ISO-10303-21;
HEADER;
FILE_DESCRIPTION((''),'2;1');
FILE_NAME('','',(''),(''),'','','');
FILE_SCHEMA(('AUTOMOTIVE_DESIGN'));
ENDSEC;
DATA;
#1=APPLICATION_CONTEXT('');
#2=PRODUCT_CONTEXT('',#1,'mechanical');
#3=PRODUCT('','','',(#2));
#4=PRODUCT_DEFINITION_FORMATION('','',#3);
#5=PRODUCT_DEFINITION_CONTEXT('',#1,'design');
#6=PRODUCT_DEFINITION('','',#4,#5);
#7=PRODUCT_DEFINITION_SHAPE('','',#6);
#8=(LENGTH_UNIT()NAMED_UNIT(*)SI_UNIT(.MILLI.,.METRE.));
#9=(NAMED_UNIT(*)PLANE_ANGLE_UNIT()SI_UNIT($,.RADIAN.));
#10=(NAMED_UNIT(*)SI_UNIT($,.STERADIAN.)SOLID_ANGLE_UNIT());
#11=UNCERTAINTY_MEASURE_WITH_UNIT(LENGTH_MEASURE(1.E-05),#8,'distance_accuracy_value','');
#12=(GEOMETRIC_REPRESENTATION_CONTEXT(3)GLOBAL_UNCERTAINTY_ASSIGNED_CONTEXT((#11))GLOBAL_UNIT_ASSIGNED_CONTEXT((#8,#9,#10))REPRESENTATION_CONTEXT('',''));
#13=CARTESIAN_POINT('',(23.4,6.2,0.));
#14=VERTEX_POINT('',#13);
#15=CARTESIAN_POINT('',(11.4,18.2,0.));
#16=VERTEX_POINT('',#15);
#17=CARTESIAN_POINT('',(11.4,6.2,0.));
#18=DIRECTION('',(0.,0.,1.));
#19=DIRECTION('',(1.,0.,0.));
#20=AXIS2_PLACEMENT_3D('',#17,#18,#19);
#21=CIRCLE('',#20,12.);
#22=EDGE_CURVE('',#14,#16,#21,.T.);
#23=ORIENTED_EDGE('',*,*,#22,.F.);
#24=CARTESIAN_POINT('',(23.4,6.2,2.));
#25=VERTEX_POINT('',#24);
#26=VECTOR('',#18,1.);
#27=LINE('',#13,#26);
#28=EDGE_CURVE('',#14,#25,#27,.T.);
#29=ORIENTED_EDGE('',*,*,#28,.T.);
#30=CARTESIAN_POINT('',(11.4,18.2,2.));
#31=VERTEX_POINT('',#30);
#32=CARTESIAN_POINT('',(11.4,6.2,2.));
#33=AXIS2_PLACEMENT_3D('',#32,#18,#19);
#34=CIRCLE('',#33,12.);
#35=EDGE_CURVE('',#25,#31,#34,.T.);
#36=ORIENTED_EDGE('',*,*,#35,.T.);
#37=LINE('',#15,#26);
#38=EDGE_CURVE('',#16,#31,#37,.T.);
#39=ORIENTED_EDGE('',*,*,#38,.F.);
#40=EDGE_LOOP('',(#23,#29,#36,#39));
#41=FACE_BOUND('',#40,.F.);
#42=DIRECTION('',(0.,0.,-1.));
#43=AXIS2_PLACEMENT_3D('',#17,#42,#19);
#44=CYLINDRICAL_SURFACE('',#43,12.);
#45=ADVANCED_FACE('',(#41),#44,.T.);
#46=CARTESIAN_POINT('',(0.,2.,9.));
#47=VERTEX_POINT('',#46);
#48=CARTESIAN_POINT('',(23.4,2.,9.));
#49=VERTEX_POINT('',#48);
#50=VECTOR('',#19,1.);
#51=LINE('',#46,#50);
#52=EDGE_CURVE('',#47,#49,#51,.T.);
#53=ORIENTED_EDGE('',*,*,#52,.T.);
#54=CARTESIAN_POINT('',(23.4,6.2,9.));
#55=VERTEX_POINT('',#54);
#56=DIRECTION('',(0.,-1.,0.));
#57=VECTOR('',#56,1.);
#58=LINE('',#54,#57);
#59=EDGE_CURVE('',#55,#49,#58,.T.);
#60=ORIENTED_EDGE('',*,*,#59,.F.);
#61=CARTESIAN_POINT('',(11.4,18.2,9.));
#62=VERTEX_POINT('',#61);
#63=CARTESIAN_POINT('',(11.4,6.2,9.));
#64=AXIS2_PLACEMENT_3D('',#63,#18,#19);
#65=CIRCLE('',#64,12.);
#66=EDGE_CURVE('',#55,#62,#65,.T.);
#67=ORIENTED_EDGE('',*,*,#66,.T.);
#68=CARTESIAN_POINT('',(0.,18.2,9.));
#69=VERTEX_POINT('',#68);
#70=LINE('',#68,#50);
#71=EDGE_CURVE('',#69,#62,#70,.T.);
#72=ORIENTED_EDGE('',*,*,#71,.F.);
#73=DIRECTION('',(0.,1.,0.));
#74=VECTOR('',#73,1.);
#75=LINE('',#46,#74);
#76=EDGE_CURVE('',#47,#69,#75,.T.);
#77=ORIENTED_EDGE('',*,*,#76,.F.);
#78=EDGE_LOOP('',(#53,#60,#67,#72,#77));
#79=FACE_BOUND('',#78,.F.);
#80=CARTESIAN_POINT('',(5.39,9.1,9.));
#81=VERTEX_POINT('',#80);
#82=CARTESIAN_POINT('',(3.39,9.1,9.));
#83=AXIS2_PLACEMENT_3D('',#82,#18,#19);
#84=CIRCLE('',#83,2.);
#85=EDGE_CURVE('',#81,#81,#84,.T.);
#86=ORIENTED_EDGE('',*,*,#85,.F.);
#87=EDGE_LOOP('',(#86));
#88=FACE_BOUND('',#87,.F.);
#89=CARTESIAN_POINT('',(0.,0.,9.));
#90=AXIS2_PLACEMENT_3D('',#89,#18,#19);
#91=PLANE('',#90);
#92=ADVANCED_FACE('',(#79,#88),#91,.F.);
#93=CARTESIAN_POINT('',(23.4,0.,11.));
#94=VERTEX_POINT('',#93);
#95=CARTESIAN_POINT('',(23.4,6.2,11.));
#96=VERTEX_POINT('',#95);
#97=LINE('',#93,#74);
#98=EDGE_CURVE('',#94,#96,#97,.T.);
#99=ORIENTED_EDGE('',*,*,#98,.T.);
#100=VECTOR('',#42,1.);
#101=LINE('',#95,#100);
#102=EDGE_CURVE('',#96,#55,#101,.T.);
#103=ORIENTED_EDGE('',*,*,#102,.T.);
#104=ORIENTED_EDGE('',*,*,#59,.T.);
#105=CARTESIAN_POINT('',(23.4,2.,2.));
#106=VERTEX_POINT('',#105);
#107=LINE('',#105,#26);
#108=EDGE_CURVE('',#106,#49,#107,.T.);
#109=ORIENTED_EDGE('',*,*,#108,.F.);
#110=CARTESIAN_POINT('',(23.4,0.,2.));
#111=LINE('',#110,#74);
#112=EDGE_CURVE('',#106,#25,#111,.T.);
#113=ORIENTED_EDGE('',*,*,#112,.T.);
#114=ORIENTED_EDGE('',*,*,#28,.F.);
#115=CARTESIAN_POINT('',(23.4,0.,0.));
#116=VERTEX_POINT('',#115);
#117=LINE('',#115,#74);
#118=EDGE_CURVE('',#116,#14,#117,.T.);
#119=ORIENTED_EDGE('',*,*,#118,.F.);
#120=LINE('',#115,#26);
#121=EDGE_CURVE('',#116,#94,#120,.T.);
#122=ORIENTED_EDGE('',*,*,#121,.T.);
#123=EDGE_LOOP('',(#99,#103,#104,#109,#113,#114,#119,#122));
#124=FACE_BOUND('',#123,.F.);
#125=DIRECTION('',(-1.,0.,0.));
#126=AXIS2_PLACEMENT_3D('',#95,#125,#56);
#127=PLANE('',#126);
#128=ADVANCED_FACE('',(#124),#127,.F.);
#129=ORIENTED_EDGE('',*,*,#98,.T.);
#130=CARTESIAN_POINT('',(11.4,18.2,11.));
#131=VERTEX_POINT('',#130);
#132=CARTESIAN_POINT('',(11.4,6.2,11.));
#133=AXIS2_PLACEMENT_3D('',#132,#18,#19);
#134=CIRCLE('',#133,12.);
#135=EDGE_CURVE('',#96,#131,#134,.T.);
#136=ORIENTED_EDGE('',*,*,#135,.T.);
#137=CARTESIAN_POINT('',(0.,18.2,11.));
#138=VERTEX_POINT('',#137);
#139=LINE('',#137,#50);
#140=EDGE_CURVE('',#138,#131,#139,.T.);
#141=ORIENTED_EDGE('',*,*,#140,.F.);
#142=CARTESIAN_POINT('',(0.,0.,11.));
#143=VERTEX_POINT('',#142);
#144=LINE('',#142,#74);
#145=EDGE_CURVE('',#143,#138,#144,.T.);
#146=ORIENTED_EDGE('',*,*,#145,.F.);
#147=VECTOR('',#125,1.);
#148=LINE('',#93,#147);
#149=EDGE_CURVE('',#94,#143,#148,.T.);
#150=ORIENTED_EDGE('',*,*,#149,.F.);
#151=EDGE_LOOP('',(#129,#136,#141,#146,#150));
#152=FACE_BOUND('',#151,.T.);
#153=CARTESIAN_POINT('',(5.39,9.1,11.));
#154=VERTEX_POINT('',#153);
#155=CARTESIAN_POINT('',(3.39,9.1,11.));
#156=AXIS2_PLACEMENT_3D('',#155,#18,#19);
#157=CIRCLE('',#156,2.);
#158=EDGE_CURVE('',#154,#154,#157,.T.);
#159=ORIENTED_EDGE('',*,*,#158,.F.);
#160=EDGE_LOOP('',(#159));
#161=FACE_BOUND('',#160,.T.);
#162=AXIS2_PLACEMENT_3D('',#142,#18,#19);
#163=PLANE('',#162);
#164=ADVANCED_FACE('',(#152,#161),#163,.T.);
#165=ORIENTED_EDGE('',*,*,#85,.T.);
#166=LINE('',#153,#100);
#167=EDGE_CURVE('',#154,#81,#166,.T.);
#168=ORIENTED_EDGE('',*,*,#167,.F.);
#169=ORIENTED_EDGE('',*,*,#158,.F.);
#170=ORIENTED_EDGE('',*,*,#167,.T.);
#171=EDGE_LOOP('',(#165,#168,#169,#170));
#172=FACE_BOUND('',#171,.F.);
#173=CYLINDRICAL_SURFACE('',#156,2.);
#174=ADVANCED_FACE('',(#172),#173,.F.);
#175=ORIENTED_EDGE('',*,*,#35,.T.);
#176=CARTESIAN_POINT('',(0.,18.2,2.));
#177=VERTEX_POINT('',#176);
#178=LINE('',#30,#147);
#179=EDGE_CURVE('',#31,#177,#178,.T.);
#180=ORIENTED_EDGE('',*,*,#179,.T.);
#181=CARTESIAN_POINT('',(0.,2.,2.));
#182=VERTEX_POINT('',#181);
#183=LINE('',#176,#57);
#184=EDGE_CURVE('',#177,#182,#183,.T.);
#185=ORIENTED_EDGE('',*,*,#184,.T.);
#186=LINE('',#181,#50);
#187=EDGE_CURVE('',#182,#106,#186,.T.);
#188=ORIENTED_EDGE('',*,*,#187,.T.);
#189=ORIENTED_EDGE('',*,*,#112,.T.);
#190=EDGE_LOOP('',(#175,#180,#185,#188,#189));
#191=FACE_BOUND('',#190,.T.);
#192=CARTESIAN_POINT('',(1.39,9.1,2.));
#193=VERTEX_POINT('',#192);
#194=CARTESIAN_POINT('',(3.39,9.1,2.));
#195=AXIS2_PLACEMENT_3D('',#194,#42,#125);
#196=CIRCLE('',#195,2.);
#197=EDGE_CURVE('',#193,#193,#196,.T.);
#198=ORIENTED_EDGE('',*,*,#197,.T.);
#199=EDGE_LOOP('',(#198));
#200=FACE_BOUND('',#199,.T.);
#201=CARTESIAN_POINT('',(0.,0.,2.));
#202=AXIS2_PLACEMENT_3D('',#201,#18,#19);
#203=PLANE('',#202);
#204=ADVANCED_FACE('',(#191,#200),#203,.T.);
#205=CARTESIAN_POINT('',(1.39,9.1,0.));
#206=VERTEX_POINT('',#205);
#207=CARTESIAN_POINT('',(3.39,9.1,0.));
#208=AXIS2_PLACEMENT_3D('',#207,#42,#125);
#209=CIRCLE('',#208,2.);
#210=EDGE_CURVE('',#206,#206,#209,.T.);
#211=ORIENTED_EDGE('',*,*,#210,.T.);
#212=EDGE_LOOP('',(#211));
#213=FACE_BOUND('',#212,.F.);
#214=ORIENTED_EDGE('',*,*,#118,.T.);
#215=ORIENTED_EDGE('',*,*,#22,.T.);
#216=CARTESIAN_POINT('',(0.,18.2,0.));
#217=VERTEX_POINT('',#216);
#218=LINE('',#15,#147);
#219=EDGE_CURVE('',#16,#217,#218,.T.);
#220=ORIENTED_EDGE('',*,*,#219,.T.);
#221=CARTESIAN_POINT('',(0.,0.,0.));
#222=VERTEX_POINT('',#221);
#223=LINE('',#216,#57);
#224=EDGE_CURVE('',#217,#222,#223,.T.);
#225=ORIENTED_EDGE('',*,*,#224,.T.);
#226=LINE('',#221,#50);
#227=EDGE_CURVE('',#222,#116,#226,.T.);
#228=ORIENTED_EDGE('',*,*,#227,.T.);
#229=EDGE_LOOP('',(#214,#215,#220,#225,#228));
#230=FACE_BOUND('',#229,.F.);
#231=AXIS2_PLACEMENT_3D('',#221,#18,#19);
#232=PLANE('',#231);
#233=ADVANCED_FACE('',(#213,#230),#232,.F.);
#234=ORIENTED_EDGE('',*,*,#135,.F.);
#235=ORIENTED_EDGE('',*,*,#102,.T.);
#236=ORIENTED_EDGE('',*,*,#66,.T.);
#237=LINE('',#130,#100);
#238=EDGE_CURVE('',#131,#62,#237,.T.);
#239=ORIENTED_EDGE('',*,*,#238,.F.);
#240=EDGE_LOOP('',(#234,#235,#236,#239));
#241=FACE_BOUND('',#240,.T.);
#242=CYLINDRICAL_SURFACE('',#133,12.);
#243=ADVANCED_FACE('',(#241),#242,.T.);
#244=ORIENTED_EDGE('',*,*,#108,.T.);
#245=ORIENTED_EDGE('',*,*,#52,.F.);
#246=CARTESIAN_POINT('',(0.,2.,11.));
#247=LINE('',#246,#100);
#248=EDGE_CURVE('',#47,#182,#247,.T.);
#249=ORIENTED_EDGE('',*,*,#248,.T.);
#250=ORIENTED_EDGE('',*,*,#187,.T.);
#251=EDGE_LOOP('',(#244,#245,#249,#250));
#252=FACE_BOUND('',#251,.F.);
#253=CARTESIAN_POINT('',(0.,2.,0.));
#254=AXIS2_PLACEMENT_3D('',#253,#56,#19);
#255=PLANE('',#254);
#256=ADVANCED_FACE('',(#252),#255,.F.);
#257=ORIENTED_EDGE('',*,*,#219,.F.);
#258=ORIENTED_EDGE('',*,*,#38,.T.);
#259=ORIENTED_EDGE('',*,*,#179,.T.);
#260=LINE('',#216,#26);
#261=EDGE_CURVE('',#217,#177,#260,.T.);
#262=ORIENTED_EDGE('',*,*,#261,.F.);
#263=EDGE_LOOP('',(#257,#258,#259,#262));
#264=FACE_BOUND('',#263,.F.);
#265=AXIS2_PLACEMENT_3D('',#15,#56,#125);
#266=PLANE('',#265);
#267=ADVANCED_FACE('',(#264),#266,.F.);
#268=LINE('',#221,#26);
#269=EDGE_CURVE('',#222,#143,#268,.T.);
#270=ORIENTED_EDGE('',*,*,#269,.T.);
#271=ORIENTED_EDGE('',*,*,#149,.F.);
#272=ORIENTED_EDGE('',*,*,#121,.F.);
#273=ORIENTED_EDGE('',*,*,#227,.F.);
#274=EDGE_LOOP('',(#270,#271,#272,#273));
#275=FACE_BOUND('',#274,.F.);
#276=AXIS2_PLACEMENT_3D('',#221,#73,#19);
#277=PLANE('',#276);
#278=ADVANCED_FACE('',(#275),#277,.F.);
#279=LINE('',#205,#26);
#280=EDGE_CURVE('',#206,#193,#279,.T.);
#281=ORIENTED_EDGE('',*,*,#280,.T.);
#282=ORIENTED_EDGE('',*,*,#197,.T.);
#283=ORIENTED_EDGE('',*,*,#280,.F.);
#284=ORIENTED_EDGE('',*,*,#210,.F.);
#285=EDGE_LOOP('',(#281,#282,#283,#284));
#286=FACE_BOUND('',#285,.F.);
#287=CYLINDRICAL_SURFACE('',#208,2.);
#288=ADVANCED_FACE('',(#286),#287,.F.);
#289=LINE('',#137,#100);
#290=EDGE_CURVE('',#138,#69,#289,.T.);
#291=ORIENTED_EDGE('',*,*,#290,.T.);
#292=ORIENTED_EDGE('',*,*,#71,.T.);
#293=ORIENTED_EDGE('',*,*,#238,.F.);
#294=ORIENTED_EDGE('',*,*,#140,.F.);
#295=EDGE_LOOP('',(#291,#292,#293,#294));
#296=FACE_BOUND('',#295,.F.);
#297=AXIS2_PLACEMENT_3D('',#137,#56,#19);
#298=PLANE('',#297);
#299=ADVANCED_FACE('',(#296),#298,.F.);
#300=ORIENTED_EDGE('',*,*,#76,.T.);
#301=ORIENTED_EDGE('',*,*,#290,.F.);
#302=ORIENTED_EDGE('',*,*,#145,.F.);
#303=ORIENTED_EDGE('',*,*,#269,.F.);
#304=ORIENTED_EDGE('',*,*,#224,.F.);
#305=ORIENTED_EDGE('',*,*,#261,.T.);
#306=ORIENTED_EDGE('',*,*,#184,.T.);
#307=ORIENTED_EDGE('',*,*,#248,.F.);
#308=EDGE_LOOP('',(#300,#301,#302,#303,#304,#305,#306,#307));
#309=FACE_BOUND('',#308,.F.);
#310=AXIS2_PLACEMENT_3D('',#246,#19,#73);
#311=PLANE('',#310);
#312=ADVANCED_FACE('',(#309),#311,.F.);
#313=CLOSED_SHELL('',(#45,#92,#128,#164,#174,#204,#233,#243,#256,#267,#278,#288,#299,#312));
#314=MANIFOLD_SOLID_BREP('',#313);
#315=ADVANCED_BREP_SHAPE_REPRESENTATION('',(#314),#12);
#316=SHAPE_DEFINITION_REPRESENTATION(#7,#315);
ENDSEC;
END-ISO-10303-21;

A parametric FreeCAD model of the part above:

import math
import FreeCAD as App
import Part
import Sketcher

V = App.Vector

doc = App.newDocument("Part")
body = doc.addObject("PartDesign::Body", "Body")

# Sketch on XY plane
sketch1 = doc.addObject("Sketcher::SketchObject", "Sketch")
body.addObject(sketch1)
sketch1.AttachmentSupport = (doc.XY_Plane, [""])
sketch1.MapMode = "FlatFace"
sketch1.addGeometry([
    Part.LineSegment(V(0, 18, 0), V(0, 0, 0)),  # 0
    Part.LineSegment(V(0, 0, 0), V(23, 0, 0)),  # 1
    Part.LineSegment(V(23, 0, 0), V(23, 6, 0)),  # 2
    Part.ArcOfCircle(Part.Circle(V(11, 6, 0), V(0, 0, 1), 12), math.radians(0), math.radians(90)),  # 3
    Part.LineSegment(V(11, 18, 0), V(0, 18, 0)),  # 4
], False)
sketch1.addConstraint([
    Sketcher.Constraint("Coincident", 0, 2, 1, 1),
    Sketcher.Constraint("Coincident", 1, 2, 2, 1),
    Sketcher.Constraint("Tangent", 2, 2, 3, 1),
    Sketcher.Constraint("Tangent", 3, 2, 4, 1),
    Sketcher.Constraint("Coincident", 4, 2, 0, 1),
    Sketcher.Constraint("Vertical", 0),
    Sketcher.Constraint("Horizontal", 1),
    Sketcher.Constraint("Vertical", 2),
    Sketcher.Constraint("Horizontal", 4),
    Sketcher.Constraint("Coincident", 0, 2, -1, 1),
    Sketcher.Constraint("Radius", 3, 12.0),
    Sketcher.Constraint("DistanceX", 1, 1, 1, 2, 23.4),
    Sketcher.Constraint("DistanceY", 0, 2, 0, 1, 18.2),
])
pad1 = doc.addObject("PartDesign::Pad", "Pad")
body.addObject(pad1)
pad1.Profile = sketch1
pad1.Length = 2

# Sketch on XZ plane
sketch2 = doc.addObject("Sketcher::SketchObject", "Sketch001")
body.addObject(sketch2)
sketch2.AttachmentSupport = (doc.XZ_Plane, [""])
sketch2.MapMode = "FlatFace"
sketch2.addGeometry([
    Part.LineSegment(V(0, 11, 0), V(0, 2, 0)),
    Part.LineSegment(V(0, 2, 0), V(23, 2, 0)),
    Part.LineSegment(V(23, 2, 0), V(23, 11, 0)),
    Part.LineSegment(V(23, 11, 0), V(0, 11, 0)),
], False)
sketch2.addConstraint([
    Sketcher.Constraint("Coincident", 0, 2, 1, 1),
    Sketcher.Constraint("Coincident", 1, 2, 2, 1),
    Sketcher.Constraint("Coincident", 2, 2, 3, 1),
    Sketcher.Constraint("Coincident", 3, 2, 0, 1),
    Sketcher.Constraint("Vertical", 0),
    Sketcher.Constraint("Horizontal", 1),
    Sketcher.Constraint("Vertical", 2),
    Sketcher.Constraint("Horizontal", 3),
    Sketcher.Constraint("PointOnObject", 0, 2, -2),
    Sketcher.Constraint("DistanceY", 0, 2, 0, 1, 9.0),
    Sketcher.Constraint("DistanceX", 1, 1, 1, 2, 23.4),
    Sketcher.Constraint("DistanceY", -1, 1, 0, 2, 2.0),
])
pad2 = doc.addObject("PartDesign::Pad", "Pad001")
body.addObject(pad2)
pad2.Profile = sketch2
pad2.Length = 2
pad2.Reversed = True

# Sketch on XY plane
sketch3 = doc.addObject("Sketcher::SketchObject", "Sketch002")
body.addObject(sketch3)
sketch3.AttachmentSupport = (doc.XY_Plane, [""])
sketch3.MapMode = "FlatFace"
sketch3.AttachmentOffset = App.Placement(V(0, 0, 11), App.Rotation())
sketch3.addGeometry([
    Part.LineSegment(V(0, 18.2, 0), V(0, 2, 0)),  # 0
    Part.LineSegment(V(0, 2, 0), V(23.4, 2, 0)),  # 1
    Part.LineSegment(V(23.4, 2, 0), V(23.4, 6.2, 0)),  # 2
    Part.ArcOfCircle(Part.Circle(V(11.4, 6.2, 0), V(0, 0, 1), 12), math.radians(0), math.radians(90)),  # 3
    Part.LineSegment(V(11.4, 18.2, 0), V(0, 18.2, 0)),  # 4
], False)
sketch3.addConstraint([
    Sketcher.Constraint("Coincident", 0, 2, 1, 1),
    Sketcher.Constraint("Coincident", 1, 2, 2, 1),
    Sketcher.Constraint("Tangent", 2, 2, 3, 1),
    Sketcher.Constraint("Tangent", 3, 2, 4, 1),
    Sketcher.Constraint("Coincident", 4, 2, 0, 1),
    Sketcher.Constraint("Vertical", 0),
    Sketcher.Constraint("Horizontal", 1),
    Sketcher.Constraint("Vertical", 2),
    Sketcher.Constraint("Horizontal", 4),
    Sketcher.Constraint("PointOnObject", 0, 2, -2),
    Sketcher.Constraint("Radius", 3, 12.0),
    Sketcher.Constraint("DistanceY", 0, 2, 0, 1, 16.2),
    Sketcher.Constraint("DistanceX", 1, 1, 1, 2, 23.4),
    Sketcher.Constraint("DistanceY", -1, 1, 0, 2, 2.0),
])
pad3 = doc.addObject("PartDesign::Pad", "Pad002")
body.addObject(pad3)
pad3.Profile = sketch3
pad3.Length = 2
pad3.Reversed = True

# Sketch on XY plane
sketch4 = doc.addObject("Sketcher::SketchObject", "Sketch003")
body.addObject(sketch4)
sketch4.AttachmentSupport = (doc.XY_Plane, [""])
sketch4.MapMode = "FlatFace"
sketch4.AttachmentOffset = App.Placement(V(0, 0, 11), App.Rotation())
sketch4.addGeometry(Part.Circle(V(3.4, 9.1, 0), V(0, 0, 1), 2), False)
sketch4.addConstraint([
    Sketcher.Constraint("Diameter", 0, 4.0),
    Sketcher.Constraint("DistanceY", -1, 1, 0, 3, 9.1),
    Sketcher.Constraint("DistanceX", -1, 1, 0, 3, 3.39),
])
pocket1 = doc.addObject("PartDesign::Pocket", "Pocket")
body.addObject(pocket1)
pocket1.Profile = sketch4
pocket1.Length = 2

# Sketch on XY plane
sketch5 = doc.addObject("Sketcher::SketchObject", "Sketch004")
body.addObject(sketch5)
sketch5.AttachmentSupport = (doc.XY_Plane, [""])
sketch5.MapMode = "FlatFace"
sketch5.addGeometry(Part.Circle(V(3.4, 9.1, 0), V(0, 0, 1), 2), False)
sketch5.addConstraint([
    Sketcher.Constraint("Diameter", 0, 4.0),
    Sketcher.Constraint("DistanceY", -1, 1, 0, 3, 9.1),
    Sketcher.Constraint("DistanceX", -1, 1, 0, 3, 3.39),
])
pocket2 = doc.addObject("PartDesign::Pocket", "Pocket001")
body.addObject(pocket2)
pocket2.Profile = sketch5
pocket2.Length = 2
pocket2.Reversed = True

doc.recompute()
